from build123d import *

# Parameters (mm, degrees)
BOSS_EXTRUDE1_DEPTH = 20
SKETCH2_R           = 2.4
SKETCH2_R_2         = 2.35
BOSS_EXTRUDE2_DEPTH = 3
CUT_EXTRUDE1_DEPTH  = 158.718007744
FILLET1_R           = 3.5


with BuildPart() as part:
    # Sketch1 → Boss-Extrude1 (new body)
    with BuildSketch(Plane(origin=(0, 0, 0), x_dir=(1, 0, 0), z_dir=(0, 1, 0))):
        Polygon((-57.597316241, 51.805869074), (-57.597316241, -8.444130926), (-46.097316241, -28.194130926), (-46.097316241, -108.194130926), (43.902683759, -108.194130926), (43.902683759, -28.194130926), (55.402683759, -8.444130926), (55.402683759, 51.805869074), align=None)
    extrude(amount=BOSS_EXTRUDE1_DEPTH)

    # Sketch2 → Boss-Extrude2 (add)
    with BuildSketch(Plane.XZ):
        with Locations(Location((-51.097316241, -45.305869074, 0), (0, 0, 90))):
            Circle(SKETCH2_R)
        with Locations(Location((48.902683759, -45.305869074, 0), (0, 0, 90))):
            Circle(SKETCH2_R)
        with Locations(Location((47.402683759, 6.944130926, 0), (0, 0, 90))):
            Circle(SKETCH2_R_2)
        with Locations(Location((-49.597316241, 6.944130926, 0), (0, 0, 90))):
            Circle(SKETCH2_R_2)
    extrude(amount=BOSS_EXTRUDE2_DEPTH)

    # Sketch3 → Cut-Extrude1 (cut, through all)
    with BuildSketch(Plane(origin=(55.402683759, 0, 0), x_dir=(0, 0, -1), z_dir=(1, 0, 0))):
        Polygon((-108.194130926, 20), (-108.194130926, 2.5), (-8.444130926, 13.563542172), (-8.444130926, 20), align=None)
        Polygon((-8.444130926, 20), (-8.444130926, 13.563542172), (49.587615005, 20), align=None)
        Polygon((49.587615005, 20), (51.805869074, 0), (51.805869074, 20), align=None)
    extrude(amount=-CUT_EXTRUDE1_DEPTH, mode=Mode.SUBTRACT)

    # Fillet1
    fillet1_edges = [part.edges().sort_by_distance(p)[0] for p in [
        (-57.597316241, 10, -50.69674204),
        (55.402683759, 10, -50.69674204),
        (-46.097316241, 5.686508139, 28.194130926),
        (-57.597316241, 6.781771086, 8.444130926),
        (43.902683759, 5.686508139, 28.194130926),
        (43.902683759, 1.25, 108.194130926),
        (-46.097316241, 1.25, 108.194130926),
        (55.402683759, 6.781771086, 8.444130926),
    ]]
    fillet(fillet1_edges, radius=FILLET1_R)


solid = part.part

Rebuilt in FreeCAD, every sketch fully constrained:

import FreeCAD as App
import Part
import Sketcher


def edges_at(feature, points):
    """Names of the edges that pass closest to the given points."""
    edges = feature.Shape.Edges
    near = lambda p: min(range(len(edges)), key=lambda i: edges[i].distToShape(Part.Vertex(*p))[0])
    return sorted({f"Edge{near(p) + 1}" for p in points})


def add_polygon(sketch, points):
    """Adds a closed chain of lines whose ends are joined by coincident constraints."""
    first, n = sketch.GeometryCount, len(points)
    for a, b in zip(points, points[1:] + points[:1]):
        sketch.addGeometry(Part.LineSegment(App.Vector(*a, 0), App.Vector(*b, 0)), False)
    for i in range(n):
        sketch.addConstraint(Sketcher.Constraint("Coincident", first + i, 2, first + (i + 1) % n, 1))

doc = App.newDocument("Part")
body = doc.addObject("PartDesign::Body", "Body")

sketch1 = body.newObject("Sketcher::SketchObject", "Sketch")
sketch1.AttachmentSupport = (doc.getObject("XZ_Plane"), [""])
sketch1.MapMode = "FlatFace"
add_polygon(sketch1, [(-57.597316, -51.805869), (-57.597316, 8.444131), (-46.097316, 28.194131), (-46.097316, 108.194131), (43.902684, 108.194131), (43.902684, 28.194131), (55.402684, 8.444131), (55.402684, -51.805869)])
sketch1.addConstraint([
    Sketcher.Constraint("Vertical", 0),
    Sketcher.Constraint("Vertical", 2),
    Sketcher.Constraint("Horizontal", 3),
    Sketcher.Constraint("Vertical", 4),
    Sketcher.Constraint("Vertical", 6),
    Sketcher.Constraint("Horizontal", 7),
    Sketcher.Constraint("Horizontal", 1, 2, 4, 2),
    Sketcher.Constraint("Horizontal", 0, 2, 5, 2),
    Sketcher.Constraint("Equal", 1, 5),
    Sketcher.Constraint("DistanceX", 3, 1, 3, 2, 90.0),
    Sketcher.Constraint("DistanceX", 7, 2, 7, 1, 113.0),
    Sketcher.Constraint("DistanceY", 2, 1, 2, 2, 80.0),
    Sketcher.Constraint("DistanceY", 6, 2, 4, 2, 80.0),
    Sketcher.Constraint("DistanceY", 0, 1, 0, 2, 60.25),
    Sketcher.Constraint("DistanceY", -1, 1, 0, 2, 8.444131),
    Sketcher.Constraint("DistanceX", 0, 2, -1, 1, 57.597316),
])
pad1 = body.newObject("PartDesign::Pad", "Pad")
pad1.Profile = sketch1
pad1.Length = 20
pad1.Reversed = True

sketch2 = body.newObject("Sketcher::SketchObject", "Sketch001")
sketch2.AttachmentSupport = (doc.getObject("XZ_Plane"), [""])
sketch2.MapMode = "FlatFace"
sketch2.addGeometry([
    Part.Circle(App.Vector(-51.097316, -45.305869, 0), App.Vector(0, 0, 1), 2.4),
    Part.Circle(App.Vector(48.902684, -45.305869, 0), App.Vector(0, 0, 1), 2.4),
    Part.Circle(App.Vector(47.402684, 6.944131, 0), App.Vector(0, 0, 1), 2.35),
    Part.Circle(App.Vector(-49.597316, 6.944131, 0), App.Vector(0, 0, 1), 2.35),
], False)
sketch2.addConstraint([
    Sketcher.Constraint("Equal", 0, 1),
    Sketcher.Constraint("Equal", 2, 3),
    Sketcher.Constraint("Horizontal", 0, 3, 1, 3),
    Sketcher.Constraint("Horizontal", 2, 3, 3, 3),
    Sketcher.Constraint("Diameter", 0, 4.8),
    Sketcher.Constraint("Diameter", 2, 4.7),
    Sketcher.Constraint("DistanceX", 0, 3, 1, 3, 100.0),
    Sketcher.Constraint("DistanceX", 3, 3, 2, 3, 97.0),
    Sketcher.Constraint("DistanceX", 2, 3, 1, 3, 1.5),
    Sketcher.Constraint("DistanceY", 1, 3, 2, 3, 52.25),
    Sketcher.Constraint("DistanceY", 0, 3, -1, 1, 45.305869),
    Sketcher.Constraint("DistanceX", 0, 3, -1, 1, 51.097316),
])
pad2 = body.newObject("PartDesign::Pad", "Pad001")
pad2.Profile = sketch2
pad2.Length = 3

sketch3 = body.newObject("Sketcher::SketchObject", "Sketch002")
sketch3.AttachmentSupport = (doc.getObject("YZ_Plane"), [""])
sketch3.MapMode = "FlatFace"
sketch3.AttachmentOffset = App.Placement(App.Vector(0, 0, 55.402684), App.Rotation())
add_polygon(sketch3, [(20, 108.194131), (2.5, 108.194131), (13.563542, 8.444131), (20, -49.587615)])
add_polygon(sketch3, [(20, -49.587615), (0, -51.805869), (20, -51.805869)])
sketch3.addConstraint([
    Sketcher.Constraint("Horizontal", 0),
    Sketcher.Constraint("Vertical", 3),
    Sketcher.Constraint("Horizontal", 5),
    Sketcher.Constraint("Vertical", 6),
    Sketcher.Constraint("Coincident", 6, 2, 2, 2),
    Sketcher.Constraint("PointOnObject", 4, 2, -2),
    Sketcher.Constraint("Parallel", 1, 2),
    Sketcher.Constraint("Perpendicular", 2, 4),
    Sketcher.Constraint("DistanceX", 5, 1, 5, 2, 20.0),
    Sketcher.Constraint("DistanceX", 0, 2, 0, 1, 17.5),
    Sketcher.Constraint("DistanceY", 4, 2, 0, 2, 160.0),
    Sketcher.Constraint("DistanceY", 1, 2, 0, 2, 99.75),
    Sketcher.Constraint("DistanceY", -1, 1, 0, 2, 108.194131),
])
pocket1 = body.newObject("PartDesign::Pocket", "Pocket")
pocket1.Profile = sketch3
pocket1.Type = "ThroughAll"
doc.recompute()

fillet = body.newObject("PartDesign::Fillet", "Fillet")
fillet.Base = (pocket1, edges_at(pocket1, [
    (-57.597, 10, -50.697),
    (55.403, 10, -50.697),
    (-46.097, 5.687, 28.194),
    (-57.597, 6.782, 8.444),
    (43.903, 5.687, 28.194),
    (43.903, 1.25, 108.194),
    (-46.097, 1.25, 108.194),
    (55.403, 6.782, 8.444),
]))
fillet.Radius = 3.5

doc.recompute()
